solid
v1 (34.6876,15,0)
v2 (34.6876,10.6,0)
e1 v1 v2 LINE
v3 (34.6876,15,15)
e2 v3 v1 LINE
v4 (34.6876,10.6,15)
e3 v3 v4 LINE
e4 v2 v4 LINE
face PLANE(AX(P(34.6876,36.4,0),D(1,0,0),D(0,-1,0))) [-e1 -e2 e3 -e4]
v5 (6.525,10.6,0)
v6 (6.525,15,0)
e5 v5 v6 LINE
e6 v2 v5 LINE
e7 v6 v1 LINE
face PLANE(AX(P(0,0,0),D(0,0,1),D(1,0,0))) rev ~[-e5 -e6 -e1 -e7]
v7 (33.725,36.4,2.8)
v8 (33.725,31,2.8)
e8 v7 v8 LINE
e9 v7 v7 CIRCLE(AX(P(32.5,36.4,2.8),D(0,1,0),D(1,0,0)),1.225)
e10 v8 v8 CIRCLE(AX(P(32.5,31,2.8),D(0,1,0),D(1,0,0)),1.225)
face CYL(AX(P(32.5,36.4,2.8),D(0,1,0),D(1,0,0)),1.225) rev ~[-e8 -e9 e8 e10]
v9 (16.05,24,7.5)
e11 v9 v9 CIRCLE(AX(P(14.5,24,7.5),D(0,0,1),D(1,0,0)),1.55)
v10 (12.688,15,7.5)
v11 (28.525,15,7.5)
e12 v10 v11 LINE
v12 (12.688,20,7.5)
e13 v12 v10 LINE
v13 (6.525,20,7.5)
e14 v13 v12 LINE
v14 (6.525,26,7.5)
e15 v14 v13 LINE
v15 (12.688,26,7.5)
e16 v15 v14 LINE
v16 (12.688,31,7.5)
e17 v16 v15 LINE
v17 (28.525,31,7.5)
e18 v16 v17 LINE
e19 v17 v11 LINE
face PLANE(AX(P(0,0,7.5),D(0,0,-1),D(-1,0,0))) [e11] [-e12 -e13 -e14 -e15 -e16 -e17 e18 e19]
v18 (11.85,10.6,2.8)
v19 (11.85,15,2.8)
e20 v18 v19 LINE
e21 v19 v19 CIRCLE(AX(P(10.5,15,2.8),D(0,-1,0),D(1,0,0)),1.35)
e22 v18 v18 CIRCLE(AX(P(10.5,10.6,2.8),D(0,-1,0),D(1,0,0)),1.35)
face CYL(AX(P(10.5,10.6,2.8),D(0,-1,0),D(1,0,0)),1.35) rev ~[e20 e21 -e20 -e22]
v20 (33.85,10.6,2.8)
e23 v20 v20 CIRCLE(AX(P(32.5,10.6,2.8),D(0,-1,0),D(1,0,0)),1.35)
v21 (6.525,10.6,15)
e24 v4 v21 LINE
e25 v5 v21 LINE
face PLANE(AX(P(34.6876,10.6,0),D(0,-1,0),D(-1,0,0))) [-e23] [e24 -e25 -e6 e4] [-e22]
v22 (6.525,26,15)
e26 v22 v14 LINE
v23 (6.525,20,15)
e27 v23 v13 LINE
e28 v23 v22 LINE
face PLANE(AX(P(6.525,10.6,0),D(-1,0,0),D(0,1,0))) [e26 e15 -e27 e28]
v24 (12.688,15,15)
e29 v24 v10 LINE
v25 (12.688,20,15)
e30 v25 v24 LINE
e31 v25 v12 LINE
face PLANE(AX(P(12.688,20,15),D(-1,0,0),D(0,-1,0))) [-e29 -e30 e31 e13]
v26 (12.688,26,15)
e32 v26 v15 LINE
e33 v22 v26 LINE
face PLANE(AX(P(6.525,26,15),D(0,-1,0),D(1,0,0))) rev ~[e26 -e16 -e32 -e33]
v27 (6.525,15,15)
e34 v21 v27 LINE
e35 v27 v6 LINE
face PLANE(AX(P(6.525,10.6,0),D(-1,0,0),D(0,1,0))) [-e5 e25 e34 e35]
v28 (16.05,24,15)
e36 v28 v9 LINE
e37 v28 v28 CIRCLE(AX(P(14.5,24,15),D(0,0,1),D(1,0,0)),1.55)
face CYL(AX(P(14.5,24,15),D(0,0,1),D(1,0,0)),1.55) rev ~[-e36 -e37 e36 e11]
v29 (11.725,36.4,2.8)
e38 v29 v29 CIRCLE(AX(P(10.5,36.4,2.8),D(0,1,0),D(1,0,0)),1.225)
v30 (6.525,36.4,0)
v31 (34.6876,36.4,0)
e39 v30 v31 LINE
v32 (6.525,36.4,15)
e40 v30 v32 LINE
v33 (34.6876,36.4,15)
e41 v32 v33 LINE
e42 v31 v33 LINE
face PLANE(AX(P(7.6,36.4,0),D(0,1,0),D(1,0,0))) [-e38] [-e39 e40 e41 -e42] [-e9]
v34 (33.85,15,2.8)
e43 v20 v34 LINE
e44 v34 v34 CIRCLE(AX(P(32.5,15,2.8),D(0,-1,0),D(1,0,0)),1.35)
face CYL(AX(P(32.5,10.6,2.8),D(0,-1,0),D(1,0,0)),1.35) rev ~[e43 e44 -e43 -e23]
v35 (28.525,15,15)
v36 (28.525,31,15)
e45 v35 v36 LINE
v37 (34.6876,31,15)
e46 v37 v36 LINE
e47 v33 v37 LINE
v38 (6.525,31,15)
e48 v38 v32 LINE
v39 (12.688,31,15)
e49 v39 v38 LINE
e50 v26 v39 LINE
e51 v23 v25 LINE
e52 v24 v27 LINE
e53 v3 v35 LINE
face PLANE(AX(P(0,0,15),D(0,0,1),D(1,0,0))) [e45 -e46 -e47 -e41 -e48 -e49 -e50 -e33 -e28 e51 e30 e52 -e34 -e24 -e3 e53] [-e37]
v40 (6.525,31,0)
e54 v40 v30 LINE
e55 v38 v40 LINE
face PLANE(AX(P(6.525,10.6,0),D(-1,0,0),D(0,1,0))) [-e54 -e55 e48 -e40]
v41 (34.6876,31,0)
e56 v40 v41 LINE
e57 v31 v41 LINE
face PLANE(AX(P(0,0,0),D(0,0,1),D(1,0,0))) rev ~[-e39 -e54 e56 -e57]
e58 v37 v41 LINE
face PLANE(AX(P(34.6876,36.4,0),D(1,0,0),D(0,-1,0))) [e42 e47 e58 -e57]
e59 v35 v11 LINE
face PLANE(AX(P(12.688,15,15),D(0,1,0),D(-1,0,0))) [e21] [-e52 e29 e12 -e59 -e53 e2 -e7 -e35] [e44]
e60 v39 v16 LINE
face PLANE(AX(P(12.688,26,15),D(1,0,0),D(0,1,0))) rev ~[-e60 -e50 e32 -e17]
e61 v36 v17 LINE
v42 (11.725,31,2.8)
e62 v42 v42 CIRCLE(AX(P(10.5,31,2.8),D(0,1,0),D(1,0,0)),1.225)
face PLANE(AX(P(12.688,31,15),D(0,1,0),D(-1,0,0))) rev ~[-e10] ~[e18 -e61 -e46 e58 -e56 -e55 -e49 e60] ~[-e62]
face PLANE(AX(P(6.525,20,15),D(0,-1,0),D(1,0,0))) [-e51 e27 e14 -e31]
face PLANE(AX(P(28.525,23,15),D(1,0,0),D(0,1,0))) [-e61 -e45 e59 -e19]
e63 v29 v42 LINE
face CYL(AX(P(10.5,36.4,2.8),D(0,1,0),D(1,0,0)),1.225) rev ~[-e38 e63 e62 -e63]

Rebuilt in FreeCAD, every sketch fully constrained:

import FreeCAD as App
import Part
import Sketcher

doc = App.newDocument("Part")
params = doc.addObject("Spreadsheet::Sheet", "Params")
for row, (alias, value) in enumerate([
    ("sketch1_height", "25.8 mm"),
    ("pad1_length", "15 mm"),
    ("sketch2_height", "16 mm"),
    ("sketch2_height2", "5 mm"),
    ("sketch3_diameter", "2.7 mm"),
    ("pocket2_length", "4.4 mm"),
    ("sketch4_diameter", "2.45 mm"),
    ("pocket3_length", "5.4 mm"),
    ("sketch5_height", "16 mm"),
    ("sketch5_height2", "5 mm"),
    ("pocket4_length", "7.5 mm"),
    ("sketch6_diameter", "3.1 mm"),
], start=1):
    params.set(f"A{row}", alias)
    params.set(f"B{row}", "=" + value)
    params.setAlias(f"B{row}", alias)

body = doc.addObject("PartDesign::Body", "Body")

sketch1 = body.newObject("Sketcher::SketchObject", "Sketch")
sketch1.AttachmentSupport = (doc.getObject("XY_Plane"), [""])
sketch1.MapMode = "FlatFace"
sketch1.addGeometry([
    Part.LineSegment(App.Vector(35, 11, 0), App.Vector(35, 36, 0)),
    Part.LineSegment(App.Vector(35, 36, 0), App.Vector(7, 36, 0)),
    Part.LineSegment(App.Vector(7, 36, 0), App.Vector(7, 11, 0)),
    Part.LineSegment(App.Vector(7, 11, 0), App.Vector(35, 11, 0)),
], False)
sketch1.addConstraint([
    Sketcher.Constraint("Coincident", 0, 2, 1, 1),
    Sketcher.Constraint("Coincident", 1, 2, 2, 1),
    Sketcher.Constraint("Coincident", 2, 2, 3, 1),
    Sketcher.Constraint("Coincident", 3, 2, 0, 1),
    Sketcher.Constraint("Vertical", 0),
    Sketcher.Constraint("Horizontal", 1),
    Sketcher.Constraint("Vertical", 2),
    Sketcher.Constraint("Horizontal", 3),
    Sketcher.Constraint("DistanceY", 0, 1, 0, 2, 25.8),
    Sketcher.Constraint("DistanceY", -1, 1, 0, 2, 36.4),
    Sketcher.Constraint("DistanceX", 1, 2, 1, 1, 28.1626),
    Sketcher.Constraint("DistanceX", -1, 1, 1, 2, 6.525),
])
sketch1.setExpression("Constraints[8]", "Params.sketch1_height")
pad1 = body.newObject("PartDesign::Pad", "Pad")
pad1.Profile = sketch1
pad1.setExpression("Length", "Params.pad1_length")

sketch2 = body.newObject("Sketcher::SketchObject", "Sketch001")
sketch2.AttachmentSupport = (doc.getObject("XY_Plane"), [""])
sketch2.MapMode = "FlatFace"
sketch2.AttachmentOffset = App.Placement(App.Vector(0, 0, 15), App.Rotation())
sketch2.addGeometry([
    Part.LineSegment(App.Vector(35, 31, 0), App.Vector(29, 31, 0)),
    Part.LineSegment(App.Vector(29, 31, 0), App.Vector(29, 15, 0)),
    Part.LineSegment(App.Vector(29, 15, 0), App.Vector(35, 15, 0)),
    Part.LineSegment(App.Vector(35, 15, 0), App.Vector(35, 31, 0)),
    Part.LineSegment(App.Vector(13, 31, 0), App.Vector(7, 31, 0)),
    Part.LineSegment(App.Vector(7, 31, 0), App.Vector(7, 26, 0)),
    Part.LineSegment(App.Vector(7, 26, 0), App.Vector(13, 26, 0)),
    Part.LineSegment(App.Vector(13, 26, 0), App.Vector(13, 31, 0)),
    Part.LineSegment(App.Vector(13, 15, 0), App.Vector(13, 20, 0)),
    Part.LineSegment(App.Vector(13, 20, 0), App.Vector(7, 20, 0)),
    Part.LineSegment(App.Vector(7, 20, 0), App.Vector(7, 15, 0)),
    Part.LineSegment(App.Vector(7, 15, 0), App.Vector(13, 15, 0)),
], False)
sketch2.addConstraint([
    Sketcher.Constraint("Coincident", 0, 2, 1, 1),
    Sketcher.Constraint("Coincident", 1, 2, 2, 1),
    Sketcher.Constraint("Coincident", 2, 2, 3, 1),
    Sketcher.Constraint("Coincident", 3, 2, 0, 1),
    Sketcher.Constraint("Coincident", 4, 2, 5, 1),
    Sketcher.Constraint("Coincident", 5, 2, 6, 1),
    Sketcher.Constraint("Coincident", 6, 2, 7, 1),
    Sketcher.Constraint("Coincident", 7, 2, 4, 1),
    Sketcher.Constraint("Coincident", 8, 2, 9, 1),
    Sketcher.Constraint("Coincident", 9, 2, 10, 1),
    Sketcher.Constraint("Coincident", 10, 2, 11, 1),
    Sketcher.Constraint("Coincident", 11, 2, 8, 1),
    Sketcher.Constraint("Horizontal", 0),
    Sketcher.Constraint("Vertical", 1),
    Sketcher.Constraint("Horizontal", 2),
    Sketcher.Constraint("Vertical", 3),
    Sketcher.Constraint("Horizontal", 4),
    Sketcher.Constraint("Vertical", 5),
    Sketcher.Constraint("Horizontal", 6),
    Sketcher.Constraint("Vertical", 7),
    Sketcher.Constraint("Vertical", 8),
    Sketcher.Constraint("Horizontal", 9),
    Sketcher.Constraint("Vertical", 10),
    Sketcher.Constraint("Horizontal", 11),
    Sketcher.Constraint("Horizontal", 3, 2, 4, 2),
    Sketcher.Constraint("Horizontal", 2, 2, 10, 2),
    Sketcher.Constraint("Vertical", 7, 2, 8, 2),
    Sketcher.Constraint("Vertical", 5, 2, 9, 2),
    Sketcher.Constraint("Equal", 7, 8),
    Sketcher.Constraint("DistanceX", 4, 2, 4, 1, 6.163),
    Sketcher.Constraint("DistanceY", 1, 2, 1, 1, 16.0),
    Sketcher.Constraint("DistanceY", 5, 2, 5, 1, 5.0),
    Sketcher.Constraint("DistanceX", 0, 2, 0, 1, 6.1626),
    Sketcher.Constraint("DistanceY", -1, 1, 0, 2, 31.0),
    Sketcher.Constraint("DistanceX", 4, 2, 0, 2, 22.0),
    Sketcher.Constraint("DistanceX", -1, 1, 0, 2, 28.525),
])
sketch2.setExpression("Constraints[30]", "Params.sketch2_height")
sketch2.setExpression("Constraints[31]", "Params.sketch2_height2")
pocket1 = body.newObject("PartDesign::Pocket", "Pocket")
pocket1.Profile = sketch2
pocket1.Type = "UpToFirst"

sketch3 = body.newObject("Sketcher::SketchObject", "Sketch002")
sketch3.AttachmentSupport = (doc.getObject("XZ_Plane"), [""])
sketch3.MapMode = "FlatFace"
sketch3.AttachmentOffset = App.Placement(App.Vector(0, 0, -10.6), App.Rotation())
sketch3.addGeometry([
    Part.Circle(App.Vector(10.5, 2.8, 0), App.Vector(0, 0, 1), 1.4),
    Part.Circle(App.Vector(32.5, 2.8, 0), App.Vector(0, 0, 1), 1.4),
], False)
sketch3.addConstraint([
    Sketcher.Constraint("Equal", 0, 1),
    Sketcher.Constraint("Horizontal", 0, 3, 1, 3),
    Sketcher.Constraint("Diameter", 0, 2.7),
    Sketcher.Constraint("DistanceX", 0, 3, 1, 3, 22.0),
    Sketcher.Constraint("DistanceX", -1, 1, 0, 3, 10.5),
    Sketcher.Constraint("DistanceY", -1, 1, 0, 3, 2.8),
])
sketch3.setExpression("Constraints[2]", "Params.sketch3_diameter")
pocket2 = body.newObject("PartDesign::Pocket", "Pocket001")
pocket2.Profile = sketch3
pocket2.setExpression("Length", "Params.pocket2_length")

sketch4 = body.newObject("Sketcher::SketchObject", "Sketch003")
sketch4.AttachmentSupport = (doc.getObject("XZ_Plane"), [""])
sketch4.MapMode = "FlatFace"
sketch4.AttachmentOffset = App.Placement(App.Vector(0, 0, -36.4), App.Rotation())
sketch4.addGeometry([
    Part.Circle(App.Vector(32.5, 2.8, 0), App.Vector(0, 0, 1), 1.2),
    Part.Circle(App.Vector(10.5, 2.8, 0), App.Vector(0, 0, 1), 1.2),
], False)
sketch4.addConstraint([
    Sketcher.Constraint("Equal", 0, 1),
    Sketcher.Constraint("Horizontal", 0, 3, 1, 3),
    Sketcher.Constraint("Diameter", 0, 2.45),
    Sketcher.Constraint("DistanceX", 1, 3, 0, 3, 22.0),
    Sketcher.Constraint("DistanceX", -1, 1, 0, 3, 32.5),
    Sketcher.Constraint("DistanceY", -1, 1, 0, 3, 2.8),
])
sketch4.setExpression("Constraints[2]", "Params.sketch4_diameter")
pocket3 = body.newObject("PartDesign::Pocket", "Pocket002")
pocket3.Profile = sketch4
pocket3.setExpression("Length", "Params.pocket3_length")
pocket3.Reversed = True

sketch5 = body.newObject("Sketcher::SketchObject", "Sketch004")
sketch5.AttachmentSupport = (doc.getObject("XY_Plane"), [""])
sketch5.MapMode = "FlatFace"
sketch5.addGeometry([
    Part.LineSegment(App.Vector(29, 31, 0), App.Vector(29, 15, 0)),
    Part.LineSegment(App.Vector(29, 15, 0), App.Vector(13, 15, 0)),
    Part.LineSegment(App.Vector(13, 15, 0), App.Vector(13, 20, 0)),
    Part.LineSegment(App.Vector(13, 20, 0), App.Vector(7, 20, 0)),
    Part.LineSegment(App.Vector(7, 20, 0), App.Vector(7, 26, 0)),
    Part.LineSegment(App.Vector(7, 26, 0), App.Vector(13, 26, 0)),
    Part.LineSegment(App.Vector(13, 26, 0), App.Vector(13, 31, 0)),
    Part.LineSegment(App.Vector(13, 31, 0), App.Vector(29, 31, 0)),
], False)
sketch5.addConstraint([
    Sketcher.Constraint("Coincident", 0, 2, 1, 1),
    Sketcher.Constraint("Coincident", 1, 2, 2, 1),
    Sketcher.Constraint("Coincident", 2, 2, 3, 1),
    Sketcher.Constraint("Coincident", 3, 2, 4, 1),
    Sketcher.Constraint("Coincident", 4, 2, 5, 1),
    Sketcher.Constraint("Coincident", 5, 2, 6, 1),
    Sketcher.Constraint("Coincident", 6, 2, 7, 1),
    Sketcher.Constraint("Coincident", 7, 2, 0, 1),
    Sketcher.Constraint("Vertical", 0),
    Sketcher.Constraint("Horizontal", 1),
    Sketcher.Constraint("Vertical", 2),
    Sketcher.Constraint("Horizontal", 3),
    Sketcher.Constraint("Vertical", 4),
    Sketcher.Constraint("Horizontal", 5),
    Sketcher.Constraint("Vertical", 6),
    Sketcher.Constraint("Horizontal", 7),
    Sketcher.Constraint("Vertical", 2, 2, 5, 2),
    Sketcher.Constraint("Equal", 2, 6),
    Sketcher.Constraint("DistanceY", 0, 2, 0, 1, 16.0),
    Sketcher.Constraint("DistanceY", 2, 1, 2, 2, 5.0),
    Sketcher.Constraint("DistanceY", -1, 1, 0, 2, 15.0),
    Sketcher.Constraint("DistanceX", 3, 2, 0, 2, 22.0),
    Sketcher.Constraint("DistanceX", 1, 2, 1, 1, 15.837),
    Sketcher.Constraint("DistanceX", -1, 1, 0, 2, 28.525),
])
sketch5.setExpression("Constraints[18]", "Params.sketch5_height")
sketch5.setExpression("Constraints[19]", "Params.sketch5_height2")
pocket4 = body.newObject("PartDesign::Pocket", "Pocket003")
pocket4.Profile = sketch5
pocket4.setExpression("Length", "Params.pocket4_length")
pocket4.Reversed = True

sketch6 = body.newObject("Sketcher::SketchObject", "Sketch005")
sketch6.AttachmentSupport = (doc.getObject("XY_Plane"), [""])
sketch6.MapMode = "FlatFace"
sketch6.AttachmentOffset = App.Placement(App.Vector(0, 0, 15), App.Rotation())
sketch6.addGeometry(Part.Circle(App.Vector(14.5, 24, 0), App.Vector(0, 0, 1), 1.6), False)
sketch6.addConstraint([
    Sketcher.Constraint("Diameter", 0, 3.1),
    Sketcher.Constraint("DistanceY", -1, 1, 0, 3, 24.0),
    Sketcher.Constraint("DistanceX", -1, 1, 0, 3, 14.5),
])
sketch6.setExpression("Constraints[0]", "Params.sketch6_diameter")
pocket5 = body.newObject("PartDesign::Pocket", "Pocket004")
pocket5.Profile = sketch6
pocket5.Type = "UpToFirst"

doc.recompute()
